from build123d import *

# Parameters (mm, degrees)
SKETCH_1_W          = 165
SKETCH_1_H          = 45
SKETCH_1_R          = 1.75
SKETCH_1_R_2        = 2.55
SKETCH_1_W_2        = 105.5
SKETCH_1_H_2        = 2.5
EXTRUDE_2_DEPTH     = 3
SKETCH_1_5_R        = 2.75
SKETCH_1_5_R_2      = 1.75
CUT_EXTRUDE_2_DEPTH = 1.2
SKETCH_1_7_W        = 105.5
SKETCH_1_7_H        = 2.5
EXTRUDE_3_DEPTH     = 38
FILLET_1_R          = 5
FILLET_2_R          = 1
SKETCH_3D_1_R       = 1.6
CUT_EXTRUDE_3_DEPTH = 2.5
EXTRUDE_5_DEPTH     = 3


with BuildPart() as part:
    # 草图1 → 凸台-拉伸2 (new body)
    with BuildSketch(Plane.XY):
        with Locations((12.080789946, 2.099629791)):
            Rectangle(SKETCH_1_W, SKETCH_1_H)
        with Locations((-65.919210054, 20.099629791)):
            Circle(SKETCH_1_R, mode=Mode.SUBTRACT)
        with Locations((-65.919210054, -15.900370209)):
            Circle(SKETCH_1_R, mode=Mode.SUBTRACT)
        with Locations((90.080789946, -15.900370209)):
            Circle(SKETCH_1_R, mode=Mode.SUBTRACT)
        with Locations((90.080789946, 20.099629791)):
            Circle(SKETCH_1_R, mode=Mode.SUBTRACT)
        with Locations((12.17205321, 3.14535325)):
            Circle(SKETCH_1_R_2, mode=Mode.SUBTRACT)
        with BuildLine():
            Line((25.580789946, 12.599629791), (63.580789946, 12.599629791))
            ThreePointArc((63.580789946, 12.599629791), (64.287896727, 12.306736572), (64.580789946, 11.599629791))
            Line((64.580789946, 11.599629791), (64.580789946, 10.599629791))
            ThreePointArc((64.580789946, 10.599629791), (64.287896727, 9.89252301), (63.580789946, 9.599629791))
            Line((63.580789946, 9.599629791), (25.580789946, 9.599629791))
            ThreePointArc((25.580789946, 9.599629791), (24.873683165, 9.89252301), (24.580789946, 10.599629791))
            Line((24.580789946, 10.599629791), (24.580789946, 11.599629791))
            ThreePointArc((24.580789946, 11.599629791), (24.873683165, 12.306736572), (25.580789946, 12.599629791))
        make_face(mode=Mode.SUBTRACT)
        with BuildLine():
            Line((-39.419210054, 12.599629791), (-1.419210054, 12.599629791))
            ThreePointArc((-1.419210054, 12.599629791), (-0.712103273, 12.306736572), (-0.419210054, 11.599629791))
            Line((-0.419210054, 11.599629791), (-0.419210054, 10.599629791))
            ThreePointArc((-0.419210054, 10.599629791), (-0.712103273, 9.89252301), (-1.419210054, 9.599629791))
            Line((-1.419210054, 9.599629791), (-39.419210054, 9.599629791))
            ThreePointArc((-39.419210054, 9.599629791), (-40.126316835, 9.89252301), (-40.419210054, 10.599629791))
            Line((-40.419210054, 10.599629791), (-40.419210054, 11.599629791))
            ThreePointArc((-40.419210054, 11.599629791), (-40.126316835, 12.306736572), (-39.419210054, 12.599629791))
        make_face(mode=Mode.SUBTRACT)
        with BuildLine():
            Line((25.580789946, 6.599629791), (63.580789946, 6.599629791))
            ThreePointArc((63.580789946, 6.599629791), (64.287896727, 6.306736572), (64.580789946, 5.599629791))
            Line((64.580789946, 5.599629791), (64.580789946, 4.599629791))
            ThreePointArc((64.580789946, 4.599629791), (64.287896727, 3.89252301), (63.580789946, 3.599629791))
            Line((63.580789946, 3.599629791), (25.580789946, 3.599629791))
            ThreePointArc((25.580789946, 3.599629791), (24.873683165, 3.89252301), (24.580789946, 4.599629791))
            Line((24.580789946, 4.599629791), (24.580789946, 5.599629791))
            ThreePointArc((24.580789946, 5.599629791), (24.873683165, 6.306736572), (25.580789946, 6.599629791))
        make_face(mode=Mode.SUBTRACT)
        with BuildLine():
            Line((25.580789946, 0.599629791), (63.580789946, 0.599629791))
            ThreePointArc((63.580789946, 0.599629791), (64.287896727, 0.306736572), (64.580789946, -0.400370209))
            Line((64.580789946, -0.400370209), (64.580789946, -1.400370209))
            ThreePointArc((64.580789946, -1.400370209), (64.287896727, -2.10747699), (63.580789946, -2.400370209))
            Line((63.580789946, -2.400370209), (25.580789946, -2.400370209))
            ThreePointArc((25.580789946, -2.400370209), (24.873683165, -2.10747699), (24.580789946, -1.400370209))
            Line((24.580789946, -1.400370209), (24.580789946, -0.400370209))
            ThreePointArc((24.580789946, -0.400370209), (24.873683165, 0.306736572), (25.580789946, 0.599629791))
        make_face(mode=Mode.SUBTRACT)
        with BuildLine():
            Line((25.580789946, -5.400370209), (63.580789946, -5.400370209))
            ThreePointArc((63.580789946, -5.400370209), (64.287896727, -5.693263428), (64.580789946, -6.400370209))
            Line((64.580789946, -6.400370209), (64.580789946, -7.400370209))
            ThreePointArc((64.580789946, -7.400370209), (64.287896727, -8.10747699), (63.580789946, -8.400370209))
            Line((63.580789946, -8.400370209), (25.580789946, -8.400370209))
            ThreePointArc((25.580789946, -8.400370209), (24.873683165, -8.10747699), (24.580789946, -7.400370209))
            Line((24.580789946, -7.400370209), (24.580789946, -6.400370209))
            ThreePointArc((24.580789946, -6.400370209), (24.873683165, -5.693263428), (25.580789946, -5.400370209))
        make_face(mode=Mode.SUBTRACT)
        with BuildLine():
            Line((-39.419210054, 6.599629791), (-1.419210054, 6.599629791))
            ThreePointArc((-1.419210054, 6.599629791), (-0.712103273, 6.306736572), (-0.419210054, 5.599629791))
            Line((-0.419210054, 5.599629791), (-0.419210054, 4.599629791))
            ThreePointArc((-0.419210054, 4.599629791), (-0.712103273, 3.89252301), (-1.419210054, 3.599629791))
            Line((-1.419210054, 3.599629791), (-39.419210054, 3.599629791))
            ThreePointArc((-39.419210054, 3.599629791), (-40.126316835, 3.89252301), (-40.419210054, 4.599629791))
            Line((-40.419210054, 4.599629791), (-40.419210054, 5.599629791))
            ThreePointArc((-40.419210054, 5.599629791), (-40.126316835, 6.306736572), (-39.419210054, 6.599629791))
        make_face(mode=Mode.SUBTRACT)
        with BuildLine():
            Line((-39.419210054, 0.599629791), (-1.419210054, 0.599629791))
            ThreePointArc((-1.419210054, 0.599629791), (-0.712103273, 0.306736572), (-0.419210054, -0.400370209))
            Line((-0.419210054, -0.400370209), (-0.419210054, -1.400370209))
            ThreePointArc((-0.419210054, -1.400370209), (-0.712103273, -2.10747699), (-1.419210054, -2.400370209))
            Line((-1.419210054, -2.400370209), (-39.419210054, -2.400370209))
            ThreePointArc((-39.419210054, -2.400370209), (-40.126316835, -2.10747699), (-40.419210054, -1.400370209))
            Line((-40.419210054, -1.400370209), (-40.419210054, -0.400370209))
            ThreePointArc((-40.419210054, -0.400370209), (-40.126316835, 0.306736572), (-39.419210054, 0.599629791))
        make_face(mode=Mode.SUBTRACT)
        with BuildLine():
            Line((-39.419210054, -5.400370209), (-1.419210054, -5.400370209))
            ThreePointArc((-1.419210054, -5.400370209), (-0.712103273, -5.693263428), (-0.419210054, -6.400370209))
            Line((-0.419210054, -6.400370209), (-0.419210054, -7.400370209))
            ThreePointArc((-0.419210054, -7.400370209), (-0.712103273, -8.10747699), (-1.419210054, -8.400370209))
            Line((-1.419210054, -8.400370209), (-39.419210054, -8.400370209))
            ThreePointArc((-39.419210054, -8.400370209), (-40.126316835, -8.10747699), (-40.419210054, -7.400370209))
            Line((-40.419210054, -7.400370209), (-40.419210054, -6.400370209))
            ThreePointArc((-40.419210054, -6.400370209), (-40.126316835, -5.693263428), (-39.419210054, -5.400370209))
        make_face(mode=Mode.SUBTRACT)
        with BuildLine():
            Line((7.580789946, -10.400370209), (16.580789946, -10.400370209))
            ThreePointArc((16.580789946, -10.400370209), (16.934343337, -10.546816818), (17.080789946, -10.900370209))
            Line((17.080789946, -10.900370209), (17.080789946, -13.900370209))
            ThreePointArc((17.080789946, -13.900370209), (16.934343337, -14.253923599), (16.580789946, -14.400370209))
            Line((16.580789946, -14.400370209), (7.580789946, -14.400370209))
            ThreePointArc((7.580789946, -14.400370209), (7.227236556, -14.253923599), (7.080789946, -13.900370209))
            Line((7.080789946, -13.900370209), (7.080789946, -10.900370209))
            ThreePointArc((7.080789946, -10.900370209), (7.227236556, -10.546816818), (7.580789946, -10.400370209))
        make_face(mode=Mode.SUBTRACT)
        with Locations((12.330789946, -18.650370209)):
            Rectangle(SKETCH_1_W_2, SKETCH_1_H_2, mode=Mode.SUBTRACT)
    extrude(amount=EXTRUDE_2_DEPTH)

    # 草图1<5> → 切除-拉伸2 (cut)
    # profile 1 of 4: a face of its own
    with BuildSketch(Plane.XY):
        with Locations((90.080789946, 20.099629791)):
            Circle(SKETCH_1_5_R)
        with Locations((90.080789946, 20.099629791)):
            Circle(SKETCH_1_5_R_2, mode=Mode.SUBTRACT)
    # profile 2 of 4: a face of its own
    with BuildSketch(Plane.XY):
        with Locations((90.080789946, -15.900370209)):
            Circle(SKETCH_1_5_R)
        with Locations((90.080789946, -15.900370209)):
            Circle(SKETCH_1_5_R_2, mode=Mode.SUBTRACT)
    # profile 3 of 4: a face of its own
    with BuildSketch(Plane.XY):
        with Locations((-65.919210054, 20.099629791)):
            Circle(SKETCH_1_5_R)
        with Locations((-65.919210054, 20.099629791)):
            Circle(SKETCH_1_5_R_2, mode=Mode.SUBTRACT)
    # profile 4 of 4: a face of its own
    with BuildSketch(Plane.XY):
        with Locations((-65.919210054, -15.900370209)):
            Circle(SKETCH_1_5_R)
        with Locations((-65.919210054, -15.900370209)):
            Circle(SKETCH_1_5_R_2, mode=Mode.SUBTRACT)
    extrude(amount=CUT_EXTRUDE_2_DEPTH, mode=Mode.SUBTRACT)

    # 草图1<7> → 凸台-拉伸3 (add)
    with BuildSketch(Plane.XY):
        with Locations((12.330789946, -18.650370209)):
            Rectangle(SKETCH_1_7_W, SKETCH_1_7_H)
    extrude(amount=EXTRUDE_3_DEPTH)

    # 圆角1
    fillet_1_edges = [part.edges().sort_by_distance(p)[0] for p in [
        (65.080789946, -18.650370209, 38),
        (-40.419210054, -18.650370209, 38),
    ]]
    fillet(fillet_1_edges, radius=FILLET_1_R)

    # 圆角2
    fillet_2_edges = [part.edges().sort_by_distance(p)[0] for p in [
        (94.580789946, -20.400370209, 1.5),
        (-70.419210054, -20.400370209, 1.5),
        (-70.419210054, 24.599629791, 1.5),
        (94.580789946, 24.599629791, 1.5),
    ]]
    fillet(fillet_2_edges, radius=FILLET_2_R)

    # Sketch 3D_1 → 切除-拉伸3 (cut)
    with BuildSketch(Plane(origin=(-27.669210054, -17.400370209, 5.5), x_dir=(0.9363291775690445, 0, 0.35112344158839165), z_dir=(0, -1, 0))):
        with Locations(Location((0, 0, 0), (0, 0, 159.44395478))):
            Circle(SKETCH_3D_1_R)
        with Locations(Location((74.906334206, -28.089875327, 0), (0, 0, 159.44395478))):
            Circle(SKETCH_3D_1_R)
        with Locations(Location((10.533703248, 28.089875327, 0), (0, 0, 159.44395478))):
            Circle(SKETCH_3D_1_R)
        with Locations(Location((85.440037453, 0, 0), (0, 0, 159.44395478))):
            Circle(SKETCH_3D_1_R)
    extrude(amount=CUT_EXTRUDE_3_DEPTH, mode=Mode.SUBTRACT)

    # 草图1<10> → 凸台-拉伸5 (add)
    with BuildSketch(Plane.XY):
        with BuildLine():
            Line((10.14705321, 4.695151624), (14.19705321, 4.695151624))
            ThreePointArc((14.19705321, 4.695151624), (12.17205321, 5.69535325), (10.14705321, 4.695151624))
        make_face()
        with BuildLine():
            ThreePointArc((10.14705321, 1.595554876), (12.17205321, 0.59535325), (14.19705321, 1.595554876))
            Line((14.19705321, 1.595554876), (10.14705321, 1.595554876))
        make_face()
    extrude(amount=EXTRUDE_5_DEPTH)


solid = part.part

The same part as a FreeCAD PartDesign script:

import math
import FreeCAD as App
import Part
import Sketcher
from FreeCAD import Vector


def edges_at(feature, points):
    """Names of the edges that pass closest to the given points."""
    edges = feature.Shape.Edges
    near = lambda p: min(range(len(edges)), key=lambda i: edges[i].distToShape(Part.Vertex(*p))[0])
    return sorted({f"Edge{near(p) + 1}" for p in points})


def add_polygon(sketch, points):
    """Adds a closed chain of lines whose ends are joined by coincident constraints."""
    first, n = sketch.GeometryCount, len(points)
    for a, b in zip(points, points[1:] + points[:1]):
        sketch.addGeometry(Part.LineSegment(App.Vector(*a, 0), App.Vector(*b, 0)), False)
    for i in range(n):
        sketch.addConstraint(Sketcher.Constraint("Coincident", first + i, 2, first + (i + 1) % n, 1))

doc = App.newDocument("Part")
params = doc.addObject("Spreadsheet::Sheet", "Params")
for row, (alias, value) in enumerate([
    ("sketch1_radius", "1 mm"),
    ("sketch1_diameter", "3.5 mm"),
    ("sketch1_diameter2", "5.1 mm"),
    ("sketch1_radius2", "0.5 mm"),
    ("sketch1_width", "165 mm"),
    ("pad1_length", "3 mm"),
    ("sketch2_diameter", "5.5 mm"),
    ("sketch2_diameter2", "3.5 mm"),
    ("pocket1_length", "1.2 mm"),
    ("sketch3_width", "105.5 mm"),
    ("sketch3_height", "2.5 mm"),
    ("pad2_length", "38 mm"),
    ("fillet_radius", "5 mm"),
    ("fillet2_radius", "1 mm"),
    ("sketch4_diameter", "3.2 mm"),
    ("pocket2_length", "2.5 mm"),
    ("sketch5_radius", "2.55 mm"),
    ("sketch5_width", "4.05 mm"),
    ("pad3_length", "3 mm"),
], start=1):
    params.set(f"A{row}", alias)
    params.set(f"B{row}", "=" + value)
    params.setAlias(f"B{row}", alias)

body = doc.addObject("PartDesign::Body", "Body")

# Sketch on XY plane
sketch1 = body.newObject("Sketcher::SketchObject", "Sketch")
sketch1.AttachmentSupport = (doc.getObject("XY_Plane"), [""])
sketch1.MapMode = "FlatFace"
add_polygon(sketch1, [(-70.41921, 24.59963), (-70.41921, -20.40037), (94.58079, -20.40037), (94.58079, 24.59963)])  # lines 0-3
sketch1.addGeometry(Part.Circle(Vector(-65.91921, -15.90037, 0), Vector(0, 0, 1), 1.75), False)  # 4
sketch1.addGeometry(Part.ArcOfCircle(Part.Circle(Vector(-39.41921, -6.40037, 0), Vector(0, 0, 1), 1), math.radians(90), math.radians(180)), False)  # 5
sketch1.addGeometry(Part.LineSegment(Vector(-39.41921, -5.40037, 0), Vector(-1.41921, -5.40037, 0)), False)  # 6
sketch1.addGeometry(Part.ArcOfCircle(Part.Circle(Vector(-1.41921, -6.40037, 0), Vector(0, 0, 1), 1), math.radians(0), math.radians(90)), False)  # 7
sketch1.addGeometry(Part.LineSegment(Vector(-0.41921, -6.40037, 0), Vector(-0.41921, -7.40037, 0)), False)  # 8
sketch1.addGeometry(Part.ArcOfCircle(Part.Circle(Vector(-1.41921, -7.40037, 0), Vector(0, 0, 1), 1), math.radians(-90), math.radians(0)), False)  # 9
sketch1.addGeometry(Part.LineSegment(Vector(-1.41921, -8.40037, 0), Vector(-39.41921, -8.40037, 0)), False)  # 10
sketch1.addGeometry(Part.ArcOfCircle(Part.Circle(Vector(-39.41921, -7.40037, 0), Vector(0, 0, 1), 1), math.radians(-180), math.radians(-90)), False)  # 11
sketch1.addGeometry(Part.LineSegment(Vector(-40.41921, -7.40037, 0), Vector(-40.41921, -6.40037, 0)), False)  # 12
sketch1.addGeometry(Part.ArcOfCircle(Part.Circle(Vector(-39.41921, -0.40037, 0), Vector(0, 0, 1), 1), math.radians(90), math.radians(180)), False)  # 13
sketch1.addGeometry(Part.LineSegment(Vector(-39.41921, 0.59963, 0), Vector(-1.41921, 0.59963, 0)), False)  # 14
sketch1.addGeometry(Part.ArcOfCircle(Part.Circle(Vector(-1.41921, -0.40037, 0), Vector(0, 0, 1), 1), math.radians(0), math.radians(90)), False)  # 15
sketch1.addGeometry(Part.LineSegment(Vector(-0.41921, -0.40037, 0), Vector(-0.41921, -1.40037, 0)), False)  # 16
sketch1.addGeometry(Part.ArcOfCircle(Part.Circle(Vector(-1.41921, -1.40037, 0), Vector(0, 0, 1), 1), math.radians(-90), math.radians(0)), False)  # 17
sketch1.addGeometry(Part.LineSegment(Vector(-1.41921, -2.40037, 0), Vector(-39.41921, -2.40037, 0)), False)  # 18
sketch1.addGeometry(Part.ArcOfCircle(Part.Circle(Vector(-39.41921, -1.40037, 0), Vector(0, 0, 1), 1), math.radians(-180), math.radians(-90)), False)  # 19
sketch1.addGeometry(Part.LineSegment(Vector(-40.41921, -1.40037, 0), Vector(-40.41921, -0.40037, 0)), False)  # 20
add_polygon(sketch1, [(65.08079, -19.90037), (-40.41921, -19.90037), (-40.41921, -17.40037), (65.08079, -17.40037)])  # lines 21-24
sketch1.addGeometry(Part.ArcOfCircle(Part.Circle(Vector(7.58079, -10.90037, 0), Vector(0, 0, 1), 0.5), math.radians(90), math.radians(180)), False)  # 25
sketch1.addGeometry(Part.LineSegment(Vector(7.58079, -10.40037, 0), Vector(16.58079, -10.40037, 0)), False)  # 26
sketch1.addGeometry(Part.ArcOfCircle(Part.Circle(Vector(16.58079, -10.90037, 0), Vector(0, 0, 1), 0.5), math.radians(0), math.radians(90)), False)  # 27
sketch1.addGeometry(Part.LineSegment(Vector(17.08079, -10.90037, 0), Vector(17.08079, -13.90037, 0)), False)  # 28
sketch1.addGeometry(Part.ArcOfCircle(Part.Circle(Vector(16.58079, -13.90037, 0), Vector(0, 0, 1), 0.5), math.radians(-90), math.radians(0)), False)  # 29
sketch1.addGeometry(Part.LineSegment(Vector(16.58079, -14.40037, 0), Vector(7.58079, -14.40037, 0)), False)  # 30
sketch1.addGeometry(Part.ArcOfCircle(Part.Circle(Vector(7.58079, -13.90037, 0), Vector(0, 0, 1), 0.5), math.radians(-180), math.radians(-90)), False)  # 31
sketch1.addGeometry(Part.LineSegment(Vector(7.08079, -13.90037, 0), Vector(7.08079, -10.90037, 0)), False)  # 32
sketch1.addGeometry(Part.Circle(Vector(90.08079, -15.90037, 0), Vector(0, 0, 1), 1.75), False)  # 33
sketch1.addGeometry(Part.ArcOfCircle(Part.Circle(Vector(25.58079, -6.40037, 0), Vector(0, 0, 1), 1), math.radians(90), math.radians(180)), False)  # 34
sketch1.addGeometry(Part.LineSegment(Vector(25.58079, -5.40037, 0), Vector(63.58079, -5.40037, 0)), False)  # 35
sketch1.addGeometry(Part.ArcOfCircle(Part.Circle(Vector(63.58079, -6.40037, 0), Vector(0, 0, 1), 1), math.radians(0), math.radians(90)), False)  # 36
sketch1.addGeometry(Part.LineSegment(Vector(64.58079, -6.40037, 0), Vector(64.58079, -7.40037, 0)), False)  # 37
sketch1.addGeometry(Part.ArcOfCircle(Part.Circle(Vector(63.58079, -7.40037, 0), Vector(0, 0, 1), 1), math.radians(-90), math.radians(0)), False)  # 38
sketch1.addGeometry(Part.LineSegment(Vector(63.58079, -8.40037, 0), Vector(25.58079, -8.40037, 0)), False)  # 39
sketch1.addGeometry(Part.ArcOfCircle(Part.Circle(Vector(25.58079, -7.40037, 0), Vector(0, 0, 1), 1), math.radians(-180), math.radians(-90)), False)  # 40
sketch1.addGeometry(Part.LineSegment(Vector(24.58079, -7.40037, 0), Vector(24.58079, -6.40037, 0)), False)  # 41
sketch1.addGeometry(Part.ArcOfCircle(Part.Circle(Vector(25.58079, -0.40037, 0), Vector(0, 0, 1), 1), math.radians(90), math.radians(180)), False)  # 42
sketch1.addGeometry(Part.LineSegment(Vector(25.58079, 0.59963, 0), Vector(63.58079, 0.59963, 0)), False)  # 43
sketch1.addGeometry(Part.ArcOfCircle(Part.Circle(Vector(63.58079, -0.40037, 0), Vector(0, 0, 1), 1), math.radians(0), math.radians(90)), False)  # 44
sketch1.addGeometry(Part.LineSegment(Vector(64.58079, -0.40037, 0), Vector(64.58079, -1.40037, 0)), False)  # 45
sketch1.addGeometry(Part.ArcOfCircle(Part.Circle(Vector(63.58079, -1.40037, 0), Vector(0, 0, 1), 1), math.radians(-90), math.radians(0)), False)  # 46
sketch1.addGeometry(Part.LineSegment(Vector(63.58079, -2.40037, 0), Vector(25.58079, -2.40037, 0)), False)  # 47
sketch1.addGeometry(Part.ArcOfCircle(Part.Circle(Vector(25.58079, -1.40037, 0), Vector(0, 0, 1), 1), math.radians(-180), math.radians(-90)), False)  # 48
sketch1.addGeometry(Part.LineSegment(Vector(24.58079, -1.40037, 0), Vector(24.58079, -0.40037, 0)), False)  # 49
sketch1.addGeometry(Part.ArcOfCircle(Part.Circle(Vector(-39.41921, 5.59963, 0), Vector(0, 0, 1), 1), math.radians(90), math.radians(180)), False)  # 50
sketch1.addGeometry(Part.LineSegment(Vector(-39.41921, 6.59963, 0), Vector(-1.41921, 6.59963, 0)), False)  # 51
sketch1.addGeometry(Part.ArcOfCircle(Part.Circle(Vector(-1.41921, 5.59963, 0), Vector(0, 0, 1), 1), math.radians(0), math.radians(90)), False)  # 52
sketch1.addGeometry(Part.LineSegment(Vector(-0.41921, 5.59963, 0), Vector(-0.41921, 4.59963, 0)), False)  # 53
sketch1.addGeometry(Part.ArcOfCircle(Part.Circle(Vector(-1.41921, 4.59963, 0), Vector(0, 0, 1), 1), math.radians(-90), math.radians(0)), False)  # 54
sketch1.addGeometry(Part.LineSegment(Vector(-1.41921, 3.59963, 0), Vector(-39.41921, 3.59963, 0)), False)  # 55
sketch1.addGeometry(Part.ArcOfCircle(Part.Circle(Vector(-39.41921, 4.59963, 0), Vector(0, 0, 1), 1), math.radians(-180), math.radians(-90)), False)  # 56
sketch1.addGeometry(Part.LineSegment(Vector(-40.41921, 4.59963, 0), Vector(-40.41921, 5.59963, 0)), False)  # 57
sketch1.addGeometry(Part.ArcOfCircle(Part.Circle(Vector(-39.41921, 11.59963, 0), Vector(0, 0, 1), 1), math.radians(90), math.radians(180)), False)  # 58
sketch1.addGeometry(Part.LineSegment(Vector(-39.41921, 12.59963, 0), Vector(-1.41921, 12.59963, 0)), False)  # 59
sketch1.addGeometry(Part.ArcOfCircle(Part.Circle(Vector(-1.41921, 11.59963, 0), Vector(0, 0, 1), 1), math.radians(0), math.radians(90)), False)  # 60
sketch1.addGeometry(Part.LineSegment(Vector(-0.41921, 11.59963, 0), Vector(-0.41921, 10.59963, 0)), False)  # 61
sketch1.addGeometry(Part.ArcOfCircle(Part.Circle(Vector(-1.41921, 10.59963, 0), Vector(0, 0, 1), 1), math.radians(-90), math.radians(0)), False)  # 62
sketch1.addGeometry(Part.LineSegment(Vector(-1.41921, 9.59963, 0), Vector(-39.41921, 9.59963, 0)), False)  # 63
sketch1.addGeometry(Part.ArcOfCircle(Part.Circle(Vector(-39.41921, 10.59963, 0), Vector(0, 0, 1), 1), math.radians(-180), math.radians(-90)), False)  # 64
sketch1.addGeometry(Part.LineSegment(Vector(-40.41921, 10.59963, 0), Vector(-40.41921, 11.59963, 0)), False)  # 65
sketch1.addGeometry(Part.Circle(Vector(-65.91921, 20.09963, 0), Vector(0, 0, 1), 1.75), False)  # 66
sketch1.addGeometry(Part.Circle(Vector(12.172053, 3.145353, 0), Vector(0, 0, 1), 2.55), False)  # 67
sketch1.addGeometry(Part.ArcOfCircle(Part.Circle(Vector(25.58079, 5.59963, 0), Vector(0, 0, 1), 1), math.radians(90), math.radians(180)), False)  # 68
sketch1.addGeometry(Part.LineSegment(Vector(25.58079, 6.59963, 0), Vector(63.58079, 6.59963, 0)), False)  # 69
sketch1.addGeometry(Part.ArcOfCircle(Part.Circle(Vector(63.58079, 5.59963, 0), Vector(0, 0, 1), 1), math.radians(0), math.radians(90)), False)  # 70
sketch1.addGeometry(Part.LineSegment(Vector(64.58079, 5.59963, 0), Vector(64.58079, 4.59963, 0)), False)  # 71
sketch1.addGeometry(Part.ArcOfCircle(Part.Circle(Vector(63.58079, 4.59963, 0), Vector(0, 0, 1), 1), math.radians(-90), math.radians(0)), False)  # 72
sketch1.addGeometry(Part.LineSegment(Vector(63.58079, 3.59963, 0), Vector(25.58079, 3.59963, 0)), False)  # 73
sketch1.addGeometry(Part.ArcOfCircle(Part.Circle(Vector(25.58079, 4.59963, 0), Vector(0, 0, 1), 1), math.radians(-180), math.radians(-90)), False)  # 74
sketch1.addGeometry(Part.LineSegment(Vector(24.58079, 4.59963, 0), Vector(24.58079, 5.59963, 0)), False)  # 75
sketch1.addGeometry(Part.ArcOfCircle(Part.Circle(Vector(25.58079, 11.59963, 0), Vector(0, 0, 1), 1), math.radians(90), math.radians(180)), False)  # 76
sketch1.addGeometry(Part.LineSegment(Vector(25.58079, 12.59963, 0), Vector(63.58079, 12.59963, 0)), False)  # 77
sketch1.addGeometry(Part.ArcOfCircle(Part.Circle(Vector(63.58079, 11.59963, 0), Vector(0, 0, 1), 1), math.radians(0), math.radians(90)), False)  # 78
sketch1.addGeometry(Part.LineSegment(Vector(64.58079, 11.59963, 0), Vector(64.58079, 10.59963, 0)), False)  # 79
sketch1.addGeometry(Part.ArcOfCircle(Part.Circle(Vector(63.58079, 10.59963, 0), Vector(0, 0, 1), 1), math.radians(-90), math.radians(0)), False)  # 80
sketch1.addGeometry(Part.LineSegment(Vector(63.58079, 9.59963, 0), Vector(25.58079, 9.59963, 0)), False)  # 81
sketch1.addGeometry(Part.ArcOfCircle(Part.Circle(Vector(25.58079, 10.59963, 0), Vector(0, 0, 1), 1), math.radians(-180), math.radians(-90)), False)  # 82
sketch1.addGeometry(Part.LineSegment(Vector(24.58079, 10.59963, 0), Vector(24.58079, 11.59963, 0)), False)  # 83
sketch1.addGeometry(Part.Circle(Vector(90.08079, 20.09963, 0), Vector(0, 0, 1), 1.75), False)  # 84
sketch1.addConstraint([
    Sketcher.Constraint("Tangent", 5, 1, 6, 1),
    Sketcher.Constraint("Tangent", 6, 2, 7, 2),
    Sketcher.Constraint("Tangent", 7, 1, 8, 1),
    Sketcher.Constraint("Tangent", 8, 2, 9, 2),
    Sketcher.Constraint("Tangent", 9, 1, 10, 1),
    Sketcher.Constraint("Tangent", 10, 2, 11, 2),
    Sketcher.Constraint("Tangent", 11, 1, 12, 1),
    Sketcher.Constraint("Tangent", 12, 2, 5, 2),
    Sketcher.Constraint("Tangent", 13, 1, 14, 1),
    Sketcher.Constraint("Tangent", 14, 2, 15, 2),
    Sketcher.Constraint("Tangent", 15, 1, 16, 1),
    Sketcher.Constraint("Tangent", 16, 2, 17, 2),
    Sketcher.Constraint("Tangent", 17, 1, 18, 1),
    Sketcher.Constraint("Tangent", 18, 2, 19, 2),
    Sketcher.Constraint("Tangent", 19, 1, 20, 1),
    Sketcher.Constraint("Tangent", 20, 2, 13, 2),
    Sketcher.Constraint("Tangent", 25, 1, 26, 1),
    Sketcher.Constraint("Tangent", 26, 2, 27, 2),
    Sketcher.Constraint("Tangent", 27, 1, 28, 1),
    Sketcher.Constraint("Tangent", 28, 2, 29, 2),
    Sketcher.Constraint("Tangent", 29, 1, 30, 1),
    Sketcher.Constraint("Tangent", 30, 2, 31, 2),
    Sketcher.Constraint("Tangent", 31, 1, 32, 1),
    Sketcher.Constraint("Tangent", 32, 2, 25, 2),
    Sketcher.Constraint("Tangent", 34, 1, 35, 1),
    Sketcher.Constraint("Tangent", 35, 2, 36, 2),
    Sketcher.Constraint("Tangent", 36, 1, 37, 1),
    Sketcher.Constraint("Tangent", 37, 2, 38, 2),
    Sketcher.Constraint("Tangent", 38, 1, 39, 1),
    Sketcher.Constraint("Tangent", 39, 2, 40, 2),
    Sketcher.Constraint("Tangent", 40, 1, 41, 1),
    Sketcher.Constraint("Tangent", 41, 2, 34, 2),
    Sketcher.Constraint("Tangent", 42, 1, 43, 1),
    Sketcher.Constraint("Tangent", 43, 2, 44, 2),
    Sketcher.Constraint("Tangent", 44, 1, 45, 1),
    Sketcher.Constraint("Tangent", 45, 2, 46, 2),
    Sketcher.Constraint("Tangent", 46, 1, 47, 1),
    Sketcher.Constraint("Tangent", 47, 2, 48, 2),
    Sketcher.Constraint("Tangent", 48, 1, 49, 1),
    Sketcher.Constraint("Tangent", 49, 2, 42, 2),
    Sketcher.Constraint("Tangent", 50, 1, 51, 1),
    Sketcher.Constraint("Tangent", 51, 2, 52, 2),
    Sketcher.Constraint("Tangent", 52, 1, 53, 1),
    Sketcher.Constraint("Tangent", 53, 2, 54, 2),
    Sketcher.Constraint("Tangent", 54, 1, 55, 1),
    Sketcher.Constraint("Tangent", 55, 2, 56, 2),
    Sketcher.Constraint("Tangent", 56, 1, 57, 1),
    Sketcher.Constraint("Tangent", 57, 2, 50, 2),
    Sketcher.Constraint("Tangent", 58, 1, 59, 1),
    Sketcher.Constraint("Tangent", 59, 2, 60, 2),
    Sketcher.Constraint("Tangent", 60, 1, 61, 1),
    Sketcher.Constraint("Tangent", 61, 2, 62, 2),
    Sketcher.Constraint("Tangent", 62, 1, 63, 1),
    Sketcher.Constraint("Tangent", 63, 2, 64, 2),
    Sketcher.Constraint("Tangent", 64, 1, 65, 1),
    Sketcher.Constraint("Tangent", 65, 2, 58, 2),
    Sketcher.Constraint("Tangent", 68, 1, 69, 1),
    Sketcher.Constraint("Tangent", 69, 2, 70, 2),
    Sketcher.Constraint("Tangent", 70, 1, 71, 1),
    Sketcher.Constraint("Tangent", 71, 2, 72, 2),
    Sketcher.Constraint("Tangent", 72, 1, 73, 1),
    Sketcher.Constraint("Tangent", 73, 2, 74, 2),
    Sketcher.Constraint("Tangent", 74, 1, 75, 1),
    Sketcher.Constraint("Tangent", 75, 2, 68, 2),
    Sketcher.Constraint("Tangent", 76, 1, 77, 1),
    Sketcher.Constraint("Tangent", 77, 2, 78, 2),
    Sketcher.Constraint("Tangent", 78, 1, 79, 1),
    Sketcher.Constraint("Tangent", 79, 2, 80, 2),
    Sketcher.Constraint("Tangent", 80, 1, 81, 1),
    Sketcher.Constraint("Tangent", 81, 2, 82, 2),
    Sketcher.Constraint("Tangent", 82, 1, 83, 1),
    Sketcher.Constraint("Tangent", 83, 2, 76, 2),
    Sketcher.Constraint("Vertical", 0),
    Sketcher.Constraint("Horizontal", 1),
    Sketcher.Constraint("Vertical", 2),
    Sketcher.Constraint("Horizontal", 3),
    Sketcher.Constraint("Horizontal", 6),
    Sketcher.Constraint("Vertical", 8),
    Sketcher.Constraint("Horizontal", 10),
    Sketcher.Constraint("Vertical", 12),
    Sketcher.Constraint("Horizontal", 14),
    Sketcher.Constraint("Vertical", 16),
    Sketcher.Constraint("Horizontal", 18),
    Sketcher.Constraint("Vertical", 20),
    Sketcher.Constraint("Horizontal", 21),
    Sketcher.Constraint("Vertical", 22),
    Sketcher.Constraint("Horizontal", 23),
    Sketcher.Constraint("Vertical", 24),
    Sketcher.Constraint("Horizontal", 26),
    Sketcher.Constraint("Vertical", 28),
    Sketcher.Constraint("Horizontal", 30),
    Sketcher.Constraint("Vertical", 32),
    Sketcher.Constraint("Horizontal", 35),
    Sketcher.Constraint("Vertical", 37),
    Sketcher.Constraint("Horizontal", 39),
    Sketcher.Constraint("Vertical", 41),
    Sketcher.Constraint("Horizontal", 43),
    Sketcher.Constraint("Vertical", 45),
    Sketcher.Constraint("Horizontal", 47),
    Sketcher.Constraint("Vertical", 49),
    Sketcher.Constraint("Horizontal", 51),
    Sketcher.Constraint("Vertical", 53),
    Sketcher.Constraint("Horizontal", 55),
    Sketcher.Constraint("Vertical", 57),
    Sketcher.Constraint("Horizontal", 59),
    Sketcher.Constraint("Vertical", 61),
    Sketcher.Constraint("Horizontal", 63),
    Sketcher.Constraint("Vertical", 65),
    Sketcher.Constraint("Horizontal", 69),
    Sketcher.Constraint("Vertical", 71),
    Sketcher.Constraint("Horizontal", 73),
    Sketcher.Constraint("Vertical", 75),
    Sketcher.Constraint("Horizontal", 77),
    Sketcher.Constraint("Vertical", 79),
    Sketcher.Constraint("Horizontal", 81),
    Sketcher.Constraint("Vertical", 83),
    Sketcher.Constraint("Equal", 5, 7),
    Sketcher.Constraint("Equal", 7, 9),
    Sketcher.Constraint("Equal", 9, 11),
    Sketcher.Constraint("Equal", 11, 13),
    Sketcher.Constraint("Equal", 13, 15),
    Sketcher.Constraint("Equal", 15, 17),
    Sketcher.Constraint("Equal", 17, 19),
    Sketcher.Constraint("Equal", 25, 27),
    Sketcher.Constraint("Equal", 27, 29),
    Sketcher.Constraint("Equal", 29, 31),
    Sketcher.Constraint("Equal", 4, 33),
    Sketcher.Constraint("Equal", 19, 34),
    Sketcher.Constraint("Equal", 34, 36),
    Sketcher.Constraint("Equal", 36, 38),
    Sketcher.Constraint("Equal", 38, 40),
    Sketcher.Constraint("Equal", 40, 42),
    Sketcher.Constraint("Equal", 42, 44),
    Sketcher.Constraint("Equal", 44, 46),
    Sketcher.Constraint("Equal", 46, 48),
    Sketcher.Constraint("Equal", 48, 50),
    Sketcher.Constraint("Equal", 50, 52),
    Sketcher.Constraint("Equal", 52, 54),
    Sketcher.Constraint("Equal", 54, 56),
    Sketcher.Constraint("Equal", 56, 58),
    Sketcher.Constraint("Equal", 58, 60),
    Sketcher.Constraint("Equal", 60, 62),
    Sketcher.Constraint("Equal", 62, 64),
    Sketcher.Constraint("Equal", 33, 66),
    Sketcher.Constraint("Equal", 64, 68),
    Sketcher.Constraint("Equal", 68, 70),
    Sketcher.Constraint("Equal", 70, 72),
    Sketcher.Constraint("Equal", 72, 74),
    Sketcher.Constraint("Equal", 74, 76),
    Sketcher.Constraint("Equal", 76, 78),
    Sketcher.Constraint("Equal", 78, 80),
    Sketcher.Constraint("Equal", 80, 82),
    Sketcher.Constraint("Equal", 66, 84),
    Sketcher.Constraint("Horizontal", 4, 3, 33, 3),
    Sketcher.Constraint("Horizontal", 7, 3, 34, 3),
    Sketcher.Constraint("Horizontal", 11, 3, 38, 3),
    Sketcher.Constraint("Horizontal", 15, 3, 42, 3),
    Sketcher.Constraint("Horizontal", 19, 3, 46, 3),
    Sketcher.Constraint("Horizontal", 52, 3, 68, 3),
    Sketcher.Constraint("Horizontal", 56, 3, 72, 3),
    Sketcher.Constraint("Horizontal", 60, 3, 76, 3),
    Sketcher.Constraint("Horizontal", 64, 3, 80, 3),
    Sketcher.Constraint("Horizontal", 66, 3, 84, 3),
    Sketcher.Constraint("Vertical", 11, 3, 13, 3),
    Sketcher.Constraint("Vertical", 9, 3, 15, 3),
    Sketcher.Constraint("Vertical", 40, 3, 42, 3),
    Sketcher.Constraint("Vertical", 38, 3, 44, 3),
    Sketcher.Constraint("Vertical", 19, 3, 50, 3),
    Sketcher.Constraint("Vertical", 17, 3, 52, 3),
    Sketcher.Constraint("Vertical", 56, 3, 58, 3),
    Sketcher.Constraint("Vertical", 54, 3, 60, 3),
    Sketcher.Constraint("Vertical", 4, 3, 66, 3),
    Sketcher.Constraint("Vertical", 48, 3, 68, 3),
    Sketcher.Constraint("Vertical", 46, 3, 70, 3),
    Sketcher.Constraint("Vertical", 74, 3, 76, 3),
    Sketcher.Constraint("Vertical", 72, 3, 78, 3),
    Sketcher.Constraint("Vertical", 33, 3, 84, 3),
    Sketcher.Constraint("Vertical", 20, 2, 21, 2),
    Sketcher.Constraint("Equal", 18, 35),
    Sketcher.Constraint("Equal", 12, 16),
    Sketcher.Constraint("Equal", 49, 53),
    Sketcher.Constraint("Equal", 57, 61),
    Sketcher.Constraint("Radius", 5, 1.0),
    Sketcher.Constraint("Diameter", 4, 3.5),
    Sketcher.Constraint("Diameter", 67, 5.1),
    Sketcher.Constraint("Radius", 25, 0.5),
    Sketcher.Constraint("DistanceX", 1, 1, 1, 2, 165.0),
    Sketcher.Constraint("DistanceX", 6, 1, 6, 2, 38.0),
    Sketcher.Constraint("DistanceX", 26, 1, 26, 2, 9.0),
    Sketcher.Constraint("DistanceY", 0, 2, 0, 1, 45.0),
    Sketcher.Constraint("DistanceY", 8, 2, 8, 1, 1.0),
    Sketcher.Constraint("DistanceY", 28, 2, 28, 1, 3.0),
    Sketcher.Constraint("DistanceX", 21, 2, 21, 1, 105.5),
    Sketcher.Constraint("DistanceY", 22, 1, 22, 2, 2.5),
    Sketcher.Constraint("DistanceX", 4, 3, -1, 1, 65.91921),
    Sketcher.Constraint("DistanceY", 4, 3, -1, 1, 15.90037),
    Sketcher.Constraint("DistanceX", 5, 3, -1, 1, 39.41921),
    Sketcher.Constraint("DistanceY", 5, 3, -1, 1, 6.40037),
    Sketcher.Constraint("DistanceY", 13, 3, -1, 1, 0.40037),
    Sketcher.Constraint("DistanceX", -1, 1, 25, 3, 7.58079),
    Sketcher.Constraint("DistanceY", 25, 3, -1, 1, 10.90037),
    Sketcher.Constraint("DistanceX", -1, 1, 33, 3, 90.08079),
    Sketcher.Constraint("DistanceX", -1, 1, 34, 3, 25.58079),
    Sketcher.Constraint("DistanceY", -1, 1, 50, 3, 5.59963),
    Sketcher.Constraint("DistanceY", -1, 1, 58, 3, 11.59963),
    Sketcher.Constraint("DistanceY", -1, 1, 66, 3, 20.09963),
    Sketcher.Constraint("DistanceX", 0, 2, -1, 1, 70.41921),
    Sketcher.Constraint("DistanceY", 0, 2, -1, 1, 20.40037),
    Sketcher.Constraint("DistanceY", 21, 2, -1, 1, 19.90037),
    Sketcher.Constraint("DistanceX", -1, 1, 67, 3, 12.172053),
    Sketcher.Constraint("DistanceY", -1, 1, 67, 3, 3.145353),
])
sketch1.setExpression("Constraints[190]", "Params.sketch1_radius")
sketch1.setExpression("Constraints[191]", "Params.sketch1_diameter")
sketch1.setExpression("Constraints[192]", "Params.sketch1_diameter2")
sketch1.setExpression("Constraints[193]", "Params.sketch1_radius2")
sketch1.setExpression("Constraints[194]", "Params.sketch1_width")
pad1 = body.newObject("PartDesign::Pad", "Pad")
pad1.Profile = sketch1
pad1.setExpression("Length", "Params.pad1_length")

# Sketch on XY plane
sketch2 = body.newObject("Sketcher::SketchObject", "Sketch001")
sketch2.AttachmentSupport = (doc.getObject("XY_Plane"), [""])
sketch2.MapMode = "FlatFace"
sketch2.addGeometry([
    Part.Circle(Vector(90.08079, 20.09963, 0), Vector(0, 0, 1), 2.75),  # 0
    Part.Circle(Vector(90.08079, 20.09963, 0), Vector(0, 0, 1), 1.75),  # 1
    Part.Circle(Vector(90.08079, -15.90037, 0), Vector(0, 0, 1), 2.75),  # 2
    Part.Circle(Vector(90.08079, -15.90037, 0), Vector(0, 0, 1), 1.75),  # 3
    Part.Circle(Vector(-65.91921, 20.09963, 0), Vector(0, 0, 1), 2.75),  # 4
    Part.Circle(Vector(-65.91921, 20.09963, 0), Vector(0, 0, 1), 1.75),  # 5
    Part.Circle(Vector(-65.91921, -15.90037, 0), Vector(0, 0, 1), 2.75),  # 6
    Part.Circle(Vector(-65.91921, -15.90037, 0), Vector(0, 0, 1), 1.75),  # 7
], False)
sketch2.addConstraint([
    Sketcher.Constraint("Coincident", 1, 3, 0, 3),
    Sketcher.Constraint("Coincident", 3, 3, 2, 3),
    Sketcher.Constraint("Coincident", 5, 3, 4, 3),
    Sketcher.Constraint("Coincident", 7, 3, 6, 3),
    Sketcher.Constraint("Equal", 0, 2),
    Sketcher.Constraint("Equal", 1, 3),
    Sketcher.Constraint("Equal", 2, 4),
    Sketcher.Constraint("Equal", 3, 5),
    Sketcher.Constraint("Equal", 4, 6),
    Sketcher.Constraint("Equal", 5, 7),
    Sketcher.Constraint("Horizontal", 1, 3, 4, 3),
    Sketcher.Constraint("Horizontal", 3, 3, 6, 3),
    Sketcher.Constraint("Vertical", 1, 3, 2, 3),
    Sketcher.Constraint("Vertical", 5, 3, 6, 3),
    Sketcher.Constraint("Diameter", 0, 5.5),
    Sketcher.Constraint("Diameter", 1, 3.5),
    Sketcher.Constraint("DistanceY", 2, 3, 0, 3, 36.0),
    Sketcher.Constraint("DistanceX", 4, 3, 0, 3, 156.0),
    Sketcher.Constraint("DistanceX", -1, 1, 0, 3, 90.08079),
    Sketcher.Constraint("DistanceY", -1, 1, 0, 3, 20.09963),
])
sketch2.setExpression("Constraints[14]", "Params.sketch2_diameter")
sketch2.setExpression("Constraints[15]", "Params.sketch2_diameter2")
pocket1 = body.newObject("PartDesign::Pocket", "Pocket")
pocket1.Profile = sketch2
pocket1.setExpression("Length", "Params.pocket1_length")
pocket1.Reversed = True

# Sketch on XY plane
sketch3 = body.newObject("Sketcher::SketchObject", "Sketch002")
sketch3.AttachmentSupport = (doc.getObject("XY_Plane"), [""])
sketch3.MapMode = "FlatFace"
add_polygon(sketch3, [(-40.41921, -17.40037), (-40.41921, -19.90037), (65.08079, -19.90037), (65.08079, -17.40037)])  # lines 0-3
sketch3.addConstraint([
    Sketcher.Constraint("Vertical", 0),
    Sketcher.Constraint("Horizontal", 1),
    Sketcher.Constraint("Vertical", 2),
    Sketcher.Constraint("Horizontal", 3),
    Sketcher.Constraint("DistanceX", 1, 1, 1, 2, 105.5),
    Sketcher.Constraint("DistanceY", 0, 2, 0, 1, 2.5),
    Sketcher.Constraint("DistanceX", 0, 2, -1, 1, 40.41921),
    Sketcher.Constraint("DistanceY", 0, 2, -1, 1, 19.90037),
])
sketch3.setExpression("Constraints[8]", "Params.sketch3_width")
sketch3.setExpression("Constraints[9]", "Params.sketch3_height")
pad2 = body.newObject("PartDesign::Pad", "Pad001")
pad2.Profile = sketch3
pad2.setExpression("Length", "Params.pad2_length")
doc.recompute()

fillet = body.newObject("PartDesign::Fillet", "Fillet")
fillet.Base = (pad2, edges_at(pad2, [(65.081, -18.65, 38), (-40.419, -18.65, 38)]))
fillet.setExpression("Radius", "Params.fillet_radius")
doc.recompute()

fillet2 = body.newObject("PartDesign::Fillet", "Fillet001")
fillet2.Base = (fillet, edges_at(fillet, [
    (94.581, -20.4, 1.5),
    (-70.419, -20.4, 1.5),
    (-70.419, 24.6, 1.5),
    (94.581, 24.6, 1.5),
]))
fillet2.setExpression("Radius", "Params.fillet2_radius")

# Sketch on XZ plane
sketch4 = body.newObject("Sketcher::SketchObject", "Sketch003")
sketch4.AttachmentSupport = (doc.getObject("XZ_Plane"), [""])
sketch4.MapMode = "FlatFace"
sketch4.AttachmentOffset = App.Placement(Vector(0, 0, 17.40037), App.Rotation())
sketch4.addGeometry([
    Part.Circle(Vector(-27.66921, 5.5, 0), Vector(0, 0, 1), 1.6),
    Part.Circle(Vector(52.33079, 5.5, 0), Vector(0, 0, 1), 1.6),
    Part.Circle(Vector(-27.66921, 35.5, 0), Vector(0, 0, 1), 1.6),
    Part.Circle(Vector(52.33079, 35.5, 0), Vector(0, 0, 1), 1.6),
], False)
sketch4.addConstraint([
    Sketcher.Constraint("Equal", 0, 1),
    Sketcher.Constraint("Equal", 1, 2),
    Sketcher.Constraint("Equal", 2, 3),
    Sketcher.Constraint("Horizontal", 0, 3, 1, 3),
    Sketcher.Constraint("Horizontal", 2, 3, 3, 3),
    Sketcher.Constraint("Vertical", 0, 3, 2, 3),
    Sketcher.Constraint("Vertical", 1, 3, 3, 3),
    Sketcher.Constraint("Diameter", 0, 3.2),
    Sketcher.Constraint("DistanceX", 0, 3, 1, 3, 80.0),
    Sketcher.Constraint("DistanceY", 0, 3, 2, 3, 30.0),
    Sketcher.Constraint("DistanceY", -1, 1, 0, 3, 5.5),
    Sketcher.Constraint("DistanceX", 0, 3, -1, 1, 27.66921),
])
sketch4.setExpression("Constraints[7]", "Params.sketch4_diameter")
pocket2 = body.newObject("PartDesign::Pocket", "Pocket001")
pocket2.Profile = sketch4
pocket2.setExpression("Length", "Params.pocket2_length")
pocket2.Reversed = True

# Sketch on XY plane
sketch5 = body.newObject("Sketcher::SketchObject", "Sketch004")
sketch5.AttachmentSupport = (doc.getObject("XY_Plane"), [""])
sketch5.MapMode = "FlatFace"
sketch5.addGeometry([
    Part.LineSegment(Vector(10.147053, 4.695152, 0), Vector(14.197053, 4.695152, 0)),
    Part.ArcOfCircle(Part.Circle(Vector(12.172053, 3.145353, 0), Vector(0, 0, 1), 2.55), math.radians(37.428006), math.radians(142.571994)),
    Part.ArcOfCircle(Part.Circle(Vector(12.172053, 3.145353, 0), Vector(0, 0, 1), 2.55), math.radians(-142.571994), math.radians(-37.428006)),
    Part.LineSegment(Vector(14.197053, 1.595555, 0), Vector(10.147053, 1.595555, 0)),
], False)
sketch5.addConstraint([
    Sketcher.Constraint("Coincident", 0, 1, 1, 2),
    Sketcher.Constraint("Coincident", 1, 1, 0, 2),
    Sketcher.Constraint("Coincident", 2, 1, 3, 2),
    Sketcher.Constraint("Coincident", 3, 1, 2, 2),
    Sketcher.Constraint("Horizontal", 0),
    Sketcher.Constraint("Horizontal", 3),
    Sketcher.Constraint("Coincident", 2, 3, 1, 3),
    Sketcher.Constraint("Equal", 1, 2),
    Sketcher.Constraint("Vertical", 0, 1, 2, 1),
    Sketcher.Constraint("Radius", 1, 2.55),
    Sketcher.Constraint("DistanceX", 0, 1, 0, 2, 4.05),
    Sketcher.Constraint("DistanceY", -1, 1, 0, 1, 4.695152),
    Sketcher.Constraint("DistanceX", -1, 1, 1, 3, 12.172053),
])
sketch5.setExpression("Constraints[9]", "Params.sketch5_radius")
sketch5.setExpression("Constraints[10]", "Params.sketch5_width")
pad3 = body.newObject("PartDesign::Pad", "Pad002")
pad3.Profile = sketch5
pad3.setExpression("Length", "Params.pad3_length")

doc.recompute()
